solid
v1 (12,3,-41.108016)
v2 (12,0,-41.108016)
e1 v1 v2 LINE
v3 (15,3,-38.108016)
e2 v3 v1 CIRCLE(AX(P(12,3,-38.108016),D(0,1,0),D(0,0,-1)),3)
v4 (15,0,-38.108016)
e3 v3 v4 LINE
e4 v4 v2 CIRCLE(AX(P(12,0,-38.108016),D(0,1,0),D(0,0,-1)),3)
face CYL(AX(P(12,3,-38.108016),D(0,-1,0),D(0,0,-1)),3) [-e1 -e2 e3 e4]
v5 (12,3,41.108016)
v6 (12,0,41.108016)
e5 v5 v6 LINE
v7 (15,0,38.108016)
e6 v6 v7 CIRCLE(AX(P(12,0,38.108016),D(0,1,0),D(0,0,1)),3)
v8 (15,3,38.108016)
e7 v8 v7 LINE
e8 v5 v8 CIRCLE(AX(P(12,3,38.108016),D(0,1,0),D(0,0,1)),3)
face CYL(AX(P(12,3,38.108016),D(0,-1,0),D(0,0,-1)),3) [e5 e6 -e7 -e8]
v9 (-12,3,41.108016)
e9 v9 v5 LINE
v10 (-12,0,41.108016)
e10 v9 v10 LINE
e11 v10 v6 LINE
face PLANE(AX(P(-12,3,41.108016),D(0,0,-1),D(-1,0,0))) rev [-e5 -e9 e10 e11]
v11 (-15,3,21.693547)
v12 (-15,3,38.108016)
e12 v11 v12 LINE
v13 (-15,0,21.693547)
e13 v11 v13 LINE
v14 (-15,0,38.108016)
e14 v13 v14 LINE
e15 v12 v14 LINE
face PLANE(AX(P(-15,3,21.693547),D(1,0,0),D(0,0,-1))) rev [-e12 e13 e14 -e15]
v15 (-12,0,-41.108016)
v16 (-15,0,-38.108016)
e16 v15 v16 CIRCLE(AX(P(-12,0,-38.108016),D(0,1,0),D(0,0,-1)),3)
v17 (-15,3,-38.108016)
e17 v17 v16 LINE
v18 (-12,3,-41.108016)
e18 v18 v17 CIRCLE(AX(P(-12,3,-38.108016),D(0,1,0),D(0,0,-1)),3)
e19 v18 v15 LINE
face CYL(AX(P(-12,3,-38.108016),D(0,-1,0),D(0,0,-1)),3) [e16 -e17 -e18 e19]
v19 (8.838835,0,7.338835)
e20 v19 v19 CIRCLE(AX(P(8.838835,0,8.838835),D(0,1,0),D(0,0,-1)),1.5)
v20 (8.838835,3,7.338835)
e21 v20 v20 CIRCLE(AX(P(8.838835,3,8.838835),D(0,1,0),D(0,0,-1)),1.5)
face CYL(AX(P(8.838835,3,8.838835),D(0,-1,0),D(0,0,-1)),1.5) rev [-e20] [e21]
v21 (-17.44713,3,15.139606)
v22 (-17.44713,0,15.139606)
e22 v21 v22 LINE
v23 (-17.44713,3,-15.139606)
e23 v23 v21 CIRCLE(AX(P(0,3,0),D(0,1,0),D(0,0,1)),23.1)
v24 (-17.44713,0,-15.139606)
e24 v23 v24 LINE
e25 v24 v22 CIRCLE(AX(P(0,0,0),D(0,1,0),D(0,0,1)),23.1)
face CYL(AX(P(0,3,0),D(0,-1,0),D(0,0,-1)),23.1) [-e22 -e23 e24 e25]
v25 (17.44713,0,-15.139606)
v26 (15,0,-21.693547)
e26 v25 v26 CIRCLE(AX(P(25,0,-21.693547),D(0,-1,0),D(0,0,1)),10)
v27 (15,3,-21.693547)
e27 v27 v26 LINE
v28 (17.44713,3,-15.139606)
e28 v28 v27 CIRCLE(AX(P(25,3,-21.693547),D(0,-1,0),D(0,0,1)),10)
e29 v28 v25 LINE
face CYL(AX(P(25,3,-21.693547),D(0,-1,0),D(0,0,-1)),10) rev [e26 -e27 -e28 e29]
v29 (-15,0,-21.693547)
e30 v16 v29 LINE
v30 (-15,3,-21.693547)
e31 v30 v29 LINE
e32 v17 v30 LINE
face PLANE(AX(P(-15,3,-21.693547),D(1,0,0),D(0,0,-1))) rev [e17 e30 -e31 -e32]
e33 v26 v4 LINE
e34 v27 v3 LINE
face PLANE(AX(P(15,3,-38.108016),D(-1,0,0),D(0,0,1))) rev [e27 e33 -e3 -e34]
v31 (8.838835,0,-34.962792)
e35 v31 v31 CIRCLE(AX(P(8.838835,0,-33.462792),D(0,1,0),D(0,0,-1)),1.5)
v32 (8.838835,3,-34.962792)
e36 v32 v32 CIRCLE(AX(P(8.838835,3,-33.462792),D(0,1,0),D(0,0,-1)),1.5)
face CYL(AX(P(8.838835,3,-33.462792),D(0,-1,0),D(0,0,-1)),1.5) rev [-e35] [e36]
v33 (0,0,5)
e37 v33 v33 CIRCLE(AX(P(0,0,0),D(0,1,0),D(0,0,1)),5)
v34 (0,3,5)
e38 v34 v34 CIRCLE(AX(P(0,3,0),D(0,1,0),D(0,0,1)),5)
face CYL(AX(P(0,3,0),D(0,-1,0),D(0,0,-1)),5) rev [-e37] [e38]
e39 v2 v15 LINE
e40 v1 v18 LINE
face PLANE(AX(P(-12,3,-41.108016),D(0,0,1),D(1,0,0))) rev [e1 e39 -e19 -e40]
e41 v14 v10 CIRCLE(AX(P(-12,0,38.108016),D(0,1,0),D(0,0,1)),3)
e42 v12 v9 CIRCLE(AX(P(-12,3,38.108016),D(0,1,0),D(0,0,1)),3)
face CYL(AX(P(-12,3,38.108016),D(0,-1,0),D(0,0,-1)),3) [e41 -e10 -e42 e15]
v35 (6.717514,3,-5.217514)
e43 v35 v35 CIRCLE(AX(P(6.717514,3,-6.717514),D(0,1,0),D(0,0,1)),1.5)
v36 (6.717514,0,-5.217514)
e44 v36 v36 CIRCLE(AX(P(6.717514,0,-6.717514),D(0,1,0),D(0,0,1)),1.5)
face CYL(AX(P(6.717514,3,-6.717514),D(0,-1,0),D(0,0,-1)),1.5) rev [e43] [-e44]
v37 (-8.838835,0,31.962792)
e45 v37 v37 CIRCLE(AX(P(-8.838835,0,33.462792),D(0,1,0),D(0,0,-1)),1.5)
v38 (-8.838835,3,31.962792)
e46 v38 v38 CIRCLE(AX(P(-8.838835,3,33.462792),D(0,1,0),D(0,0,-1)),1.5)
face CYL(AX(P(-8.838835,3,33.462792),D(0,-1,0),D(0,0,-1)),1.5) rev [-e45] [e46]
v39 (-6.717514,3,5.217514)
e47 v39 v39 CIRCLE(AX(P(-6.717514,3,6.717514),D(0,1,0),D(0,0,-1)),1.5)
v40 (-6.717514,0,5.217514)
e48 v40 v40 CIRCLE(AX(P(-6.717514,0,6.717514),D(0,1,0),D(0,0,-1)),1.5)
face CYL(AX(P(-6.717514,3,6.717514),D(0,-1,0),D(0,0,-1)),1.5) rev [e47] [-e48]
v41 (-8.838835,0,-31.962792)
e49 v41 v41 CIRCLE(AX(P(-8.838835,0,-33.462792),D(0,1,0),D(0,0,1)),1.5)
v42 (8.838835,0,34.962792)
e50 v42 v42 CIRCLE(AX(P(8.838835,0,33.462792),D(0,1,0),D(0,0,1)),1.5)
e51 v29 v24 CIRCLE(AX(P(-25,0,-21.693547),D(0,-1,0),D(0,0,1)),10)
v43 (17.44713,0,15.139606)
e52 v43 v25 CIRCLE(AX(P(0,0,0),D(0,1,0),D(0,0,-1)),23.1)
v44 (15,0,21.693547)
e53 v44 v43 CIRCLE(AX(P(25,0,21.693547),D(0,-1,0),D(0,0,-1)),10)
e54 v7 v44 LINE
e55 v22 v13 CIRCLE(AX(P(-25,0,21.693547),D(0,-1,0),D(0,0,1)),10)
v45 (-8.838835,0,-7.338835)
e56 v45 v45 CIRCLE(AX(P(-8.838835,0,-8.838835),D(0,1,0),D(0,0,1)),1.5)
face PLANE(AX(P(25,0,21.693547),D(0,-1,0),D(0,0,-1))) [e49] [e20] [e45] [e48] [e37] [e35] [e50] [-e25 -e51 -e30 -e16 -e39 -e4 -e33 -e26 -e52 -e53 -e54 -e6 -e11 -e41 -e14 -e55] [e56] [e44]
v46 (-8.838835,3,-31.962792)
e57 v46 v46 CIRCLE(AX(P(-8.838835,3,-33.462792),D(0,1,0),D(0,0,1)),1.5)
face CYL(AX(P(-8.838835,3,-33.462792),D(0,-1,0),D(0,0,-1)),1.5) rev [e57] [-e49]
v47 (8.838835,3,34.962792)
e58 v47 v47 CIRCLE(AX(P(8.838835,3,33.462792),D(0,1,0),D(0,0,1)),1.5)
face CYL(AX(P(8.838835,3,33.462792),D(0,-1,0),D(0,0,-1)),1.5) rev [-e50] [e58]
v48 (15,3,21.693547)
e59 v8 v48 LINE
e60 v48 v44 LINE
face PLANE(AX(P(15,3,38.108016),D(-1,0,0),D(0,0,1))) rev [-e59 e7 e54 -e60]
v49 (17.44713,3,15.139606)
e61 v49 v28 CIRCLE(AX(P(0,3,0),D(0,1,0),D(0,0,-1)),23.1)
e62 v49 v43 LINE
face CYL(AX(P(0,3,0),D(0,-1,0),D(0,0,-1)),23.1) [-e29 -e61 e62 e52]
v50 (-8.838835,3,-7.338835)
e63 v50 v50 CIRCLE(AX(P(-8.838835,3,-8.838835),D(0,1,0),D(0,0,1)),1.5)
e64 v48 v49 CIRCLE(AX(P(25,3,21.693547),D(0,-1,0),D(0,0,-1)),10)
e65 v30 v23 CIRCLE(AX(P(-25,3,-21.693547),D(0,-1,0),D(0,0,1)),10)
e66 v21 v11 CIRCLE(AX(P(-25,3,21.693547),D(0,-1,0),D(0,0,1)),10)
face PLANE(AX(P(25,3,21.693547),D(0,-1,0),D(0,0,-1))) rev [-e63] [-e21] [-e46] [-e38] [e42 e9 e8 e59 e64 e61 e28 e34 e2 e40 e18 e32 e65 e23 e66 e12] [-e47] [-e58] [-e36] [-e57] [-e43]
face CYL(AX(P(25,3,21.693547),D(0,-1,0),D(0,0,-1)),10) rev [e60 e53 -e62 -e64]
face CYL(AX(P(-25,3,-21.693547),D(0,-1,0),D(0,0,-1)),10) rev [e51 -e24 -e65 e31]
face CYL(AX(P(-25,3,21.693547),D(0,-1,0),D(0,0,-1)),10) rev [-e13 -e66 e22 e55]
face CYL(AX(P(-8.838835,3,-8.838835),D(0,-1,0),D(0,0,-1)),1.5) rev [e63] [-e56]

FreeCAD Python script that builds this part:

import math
import FreeCAD as App
import Part
import Sketcher
from FreeCAD import Vector
Q = App.Units.Quantity

doc = App.newDocument("Part")
body = doc.addObject("PartDesign::Body", "Body")

sketch1 = body.newObject("Sketcher::SketchObject", "Sketch")
sketch1.AttachmentSupport = (doc.getObject("XZ_Plane"), [""])
sketch1.MapMode = "FlatFace"
sketch1.addGeometry([
    Part.LineSegment(Vector(-15, -38.1, 0), Vector(-15, -21.7, 0)),
    Part.ArcOfCircle(Part.Circle(Vector(-25, -21.7, 0), Vector(0, 0, 1), 10), math.radians(0), math.radians(41)),
    Part.ArcOfCircle(Part.Circle(Vector(0, 0, 0), Vector(0, 0, 1), 23.1), math.radians(139), math.radians(221)),
    Part.ArcOfCircle(Part.Circle(Vector(-25, 21.7, 0), Vector(0, 0, 1), 10), math.radians(-41), math.radians(0)),
    Part.LineSegment(Vector(-15, 21.7, 0), Vector(-15, 38.1, 0)),
    Part.ArcOfCircle(Part.Circle(Vector(-12, 38.1, 0), Vector(0, 0, 1), 3), math.radians(90), math.radians(180)),
    Part.LineSegment(Vector(-12, 41.1, 0), Vector(12, 41.1, 0)),
    Part.ArcOfCircle(Part.Circle(Vector(12, 38.1, 0), Vector(0, 0, 1), 3), math.radians(0), math.radians(90)),
    Part.LineSegment(Vector(15, 38.1, 0), Vector(15, 21.7, 0)),
    Part.ArcOfCircle(Part.Circle(Vector(25, 21.7, 0), Vector(0, 0, 1), 10), math.radians(180), math.radians(221)),
    Part.ArcOfCircle(Part.Circle(Vector(0, 0, 0), Vector(0, 0, 1), 23.1), math.radians(-41), math.radians(41)),
    Part.ArcOfCircle(Part.Circle(Vector(25, -21.7, 0), Vector(0, 0, 1), 10), math.radians(139), math.radians(180)),
    Part.LineSegment(Vector(15, -21.7, 0), Vector(15, -38.1, 0)),
    Part.ArcOfCircle(Part.Circle(Vector(12, -38.1, 0), Vector(0, 0, 1), 3), math.radians(-90), math.radians(0)),
    Part.LineSegment(Vector(12, -41.1, 0), Vector(-12, -41.1, 0)),
    Part.ArcOfCircle(Part.Circle(Vector(-12, -38.1, 0), Vector(0, 0, 1), 3), math.radians(180), math.radians(270)),
    Part.Circle(Vector(8.8, 33.5, 0), Vector(0, 0, 1), 1.5),
    Part.Circle(Vector(8.8, 8.8, 0), Vector(0, 0, 1), 1.5),
    Part.Circle(Vector(-8.8, 33.5, 0), Vector(0, 0, 1), 1.5),
    Part.Circle(Vector(-6.7, 6.7, 0), Vector(0, 0, 1), 1.5),
    Part.Circle(Vector(6.7, -6.7, 0), Vector(0, 0, 1), 1.5),
    Part.Circle(Vector(8.8, -33.5, 0), Vector(0, 0, 1), 1.5),
    Part.Circle(Vector(0, 0, 0), Vector(0, 0, 1), 5),
    Part.Circle(Vector(-8.8, -8.8, 0), Vector(0, 0, 1), 1.5),
    Part.Circle(Vector(-8.8, -33.5, 0), Vector(0, 0, 1), 1.5),
], False)
sketch1.addConstraint([
    Sketcher.Constraint("Tangent", 0, 2, 1, 1),
    Sketcher.Constraint("Tangent", 1, 2, 2, 2),
    Sketcher.Constraint("Tangent", 2, 1, 3, 1),
    Sketcher.Constraint("Tangent", 3, 2, 4, 1),
    Sketcher.Constraint("Tangent", 4, 2, 5, 2),
    Sketcher.Constraint("Tangent", 5, 1, 6, 1),
    Sketcher.Constraint("Tangent", 6, 2, 7, 2),
    Sketcher.Constraint("Tangent", 7, 1, 8, 1),
    Sketcher.Constraint("Tangent", 8, 2, 9, 1),
    Sketcher.Constraint("Tangent", 9, 2, 10, 2),
    Sketcher.Constraint("Tangent", 10, 1, 11, 1),
    Sketcher.Constraint("Tangent", 11, 2, 12, 1),
    Sketcher.Constraint("Tangent", 12, 2, 13, 2),
    Sketcher.Constraint("Tangent", 13, 1, 14, 1),
    Sketcher.Constraint("Tangent", 14, 2, 15, 2),
    Sketcher.Constraint("Tangent", 15, 1, 0, 1),
    Sketcher.Constraint("Vertical", 0),
    Sketcher.Constraint("Vertical", 4),
    Sketcher.Constraint("Horizontal", 6),
    Sketcher.Constraint("Vertical", 8),
    Sketcher.Constraint("Vertical", 12),
    Sketcher.Constraint("Horizontal", 14),
    Sketcher.Constraint("Coincident", 2, 3, -1, 1),
    Sketcher.Constraint("Coincident", 10, 3, -1, 1),
    Sketcher.Constraint("Coincident", 22, 3, -1, 1),
    Sketcher.Constraint("Equal", 1, 3),
    Sketcher.Constraint("Equal", 5, 7),
    Sketcher.Constraint("Equal", 3, 9),
    Sketcher.Constraint("Equal", 2, 10),
    Sketcher.Constraint("Equal", 9, 11),
    Sketcher.Constraint("Equal", 7, 13),
    Sketcher.Constraint("Equal", 13, 15),
    Sketcher.Constraint("Equal", 16, 17),
    Sketcher.Constraint("Equal", 17, 18),
    Sketcher.Constraint("Equal", 18, 19),
    Sketcher.Constraint("Equal", 19, 20),
    Sketcher.Constraint("Equal", 20, 21),
    Sketcher.Constraint("Equal", 21, 23),
    Sketcher.Constraint("Equal", 23, 24),
    Sketcher.Constraint("Symmetric", 5, 3, 13, 3, -1, 1),
    Sketcher.Constraint("Symmetric", 19, 3, 20, 3, -1, 1),
    Sketcher.Constraint("Symmetric", 18, 3, 21, 3, -1, 1),
    Sketcher.Constraint("Symmetric", 17, 3, 23, 3, -1, 1),
    Sketcher.Constraint("Symmetric", 16, 3, 24, 3, -1, 1),
    Sketcher.Constraint("Symmetric", 16, 3, 18, 3, -2),
    Sketcher.Constraint("Horizontal", 3, 3, 9, 3),
    Sketcher.Constraint("Horizontal", 1, 3, 11, 3),
    Sketcher.Constraint("Vertical", 16, 3, 17, 3),
    Sketcher.Constraint("Diameter", 16, Q("3 mm")),
    Sketcher.Constraint("Diameter", 22, Q("10 mm")),
    Sketcher.Constraint("Radius", 1, Q("10 mm")),
    Sketcher.Constraint("Radius", 5, Q("3 mm")),
    Sketcher.Constraint("Radius", 2, Q("23.1 mm")),
    Sketcher.Constraint("DistanceX", 6, 1, 6, 2, Q("24 mm")),
    Sketcher.Constraint("DistanceY", 0, 1, 0, 2, Q("16.414469 mm")),
    Sketcher.Constraint("DistanceY", 17, 3, 7, 3, Q("29.269182 mm")),
    Sketcher.Constraint("DistanceX", 18, 3, 16, 3, Q("17.67767 mm")),
    Sketcher.Constraint("DistanceX", 19, 3, 17, 3, Q("15.556349 mm")),
    Sketcher.Constraint("DistanceY", 19, 3, 17, 3, Q("2.12132 mm")),
    Sketcher.Constraint("DistanceY", 19, 3, 18, 3, Q("26.745278 mm")),
])
pad1 = body.newObject("PartDesign::Pad", "Pad")
pad1.Profile = sketch1
pad1.Length = 3
pad1.Reversed = True

doc.recompute()
